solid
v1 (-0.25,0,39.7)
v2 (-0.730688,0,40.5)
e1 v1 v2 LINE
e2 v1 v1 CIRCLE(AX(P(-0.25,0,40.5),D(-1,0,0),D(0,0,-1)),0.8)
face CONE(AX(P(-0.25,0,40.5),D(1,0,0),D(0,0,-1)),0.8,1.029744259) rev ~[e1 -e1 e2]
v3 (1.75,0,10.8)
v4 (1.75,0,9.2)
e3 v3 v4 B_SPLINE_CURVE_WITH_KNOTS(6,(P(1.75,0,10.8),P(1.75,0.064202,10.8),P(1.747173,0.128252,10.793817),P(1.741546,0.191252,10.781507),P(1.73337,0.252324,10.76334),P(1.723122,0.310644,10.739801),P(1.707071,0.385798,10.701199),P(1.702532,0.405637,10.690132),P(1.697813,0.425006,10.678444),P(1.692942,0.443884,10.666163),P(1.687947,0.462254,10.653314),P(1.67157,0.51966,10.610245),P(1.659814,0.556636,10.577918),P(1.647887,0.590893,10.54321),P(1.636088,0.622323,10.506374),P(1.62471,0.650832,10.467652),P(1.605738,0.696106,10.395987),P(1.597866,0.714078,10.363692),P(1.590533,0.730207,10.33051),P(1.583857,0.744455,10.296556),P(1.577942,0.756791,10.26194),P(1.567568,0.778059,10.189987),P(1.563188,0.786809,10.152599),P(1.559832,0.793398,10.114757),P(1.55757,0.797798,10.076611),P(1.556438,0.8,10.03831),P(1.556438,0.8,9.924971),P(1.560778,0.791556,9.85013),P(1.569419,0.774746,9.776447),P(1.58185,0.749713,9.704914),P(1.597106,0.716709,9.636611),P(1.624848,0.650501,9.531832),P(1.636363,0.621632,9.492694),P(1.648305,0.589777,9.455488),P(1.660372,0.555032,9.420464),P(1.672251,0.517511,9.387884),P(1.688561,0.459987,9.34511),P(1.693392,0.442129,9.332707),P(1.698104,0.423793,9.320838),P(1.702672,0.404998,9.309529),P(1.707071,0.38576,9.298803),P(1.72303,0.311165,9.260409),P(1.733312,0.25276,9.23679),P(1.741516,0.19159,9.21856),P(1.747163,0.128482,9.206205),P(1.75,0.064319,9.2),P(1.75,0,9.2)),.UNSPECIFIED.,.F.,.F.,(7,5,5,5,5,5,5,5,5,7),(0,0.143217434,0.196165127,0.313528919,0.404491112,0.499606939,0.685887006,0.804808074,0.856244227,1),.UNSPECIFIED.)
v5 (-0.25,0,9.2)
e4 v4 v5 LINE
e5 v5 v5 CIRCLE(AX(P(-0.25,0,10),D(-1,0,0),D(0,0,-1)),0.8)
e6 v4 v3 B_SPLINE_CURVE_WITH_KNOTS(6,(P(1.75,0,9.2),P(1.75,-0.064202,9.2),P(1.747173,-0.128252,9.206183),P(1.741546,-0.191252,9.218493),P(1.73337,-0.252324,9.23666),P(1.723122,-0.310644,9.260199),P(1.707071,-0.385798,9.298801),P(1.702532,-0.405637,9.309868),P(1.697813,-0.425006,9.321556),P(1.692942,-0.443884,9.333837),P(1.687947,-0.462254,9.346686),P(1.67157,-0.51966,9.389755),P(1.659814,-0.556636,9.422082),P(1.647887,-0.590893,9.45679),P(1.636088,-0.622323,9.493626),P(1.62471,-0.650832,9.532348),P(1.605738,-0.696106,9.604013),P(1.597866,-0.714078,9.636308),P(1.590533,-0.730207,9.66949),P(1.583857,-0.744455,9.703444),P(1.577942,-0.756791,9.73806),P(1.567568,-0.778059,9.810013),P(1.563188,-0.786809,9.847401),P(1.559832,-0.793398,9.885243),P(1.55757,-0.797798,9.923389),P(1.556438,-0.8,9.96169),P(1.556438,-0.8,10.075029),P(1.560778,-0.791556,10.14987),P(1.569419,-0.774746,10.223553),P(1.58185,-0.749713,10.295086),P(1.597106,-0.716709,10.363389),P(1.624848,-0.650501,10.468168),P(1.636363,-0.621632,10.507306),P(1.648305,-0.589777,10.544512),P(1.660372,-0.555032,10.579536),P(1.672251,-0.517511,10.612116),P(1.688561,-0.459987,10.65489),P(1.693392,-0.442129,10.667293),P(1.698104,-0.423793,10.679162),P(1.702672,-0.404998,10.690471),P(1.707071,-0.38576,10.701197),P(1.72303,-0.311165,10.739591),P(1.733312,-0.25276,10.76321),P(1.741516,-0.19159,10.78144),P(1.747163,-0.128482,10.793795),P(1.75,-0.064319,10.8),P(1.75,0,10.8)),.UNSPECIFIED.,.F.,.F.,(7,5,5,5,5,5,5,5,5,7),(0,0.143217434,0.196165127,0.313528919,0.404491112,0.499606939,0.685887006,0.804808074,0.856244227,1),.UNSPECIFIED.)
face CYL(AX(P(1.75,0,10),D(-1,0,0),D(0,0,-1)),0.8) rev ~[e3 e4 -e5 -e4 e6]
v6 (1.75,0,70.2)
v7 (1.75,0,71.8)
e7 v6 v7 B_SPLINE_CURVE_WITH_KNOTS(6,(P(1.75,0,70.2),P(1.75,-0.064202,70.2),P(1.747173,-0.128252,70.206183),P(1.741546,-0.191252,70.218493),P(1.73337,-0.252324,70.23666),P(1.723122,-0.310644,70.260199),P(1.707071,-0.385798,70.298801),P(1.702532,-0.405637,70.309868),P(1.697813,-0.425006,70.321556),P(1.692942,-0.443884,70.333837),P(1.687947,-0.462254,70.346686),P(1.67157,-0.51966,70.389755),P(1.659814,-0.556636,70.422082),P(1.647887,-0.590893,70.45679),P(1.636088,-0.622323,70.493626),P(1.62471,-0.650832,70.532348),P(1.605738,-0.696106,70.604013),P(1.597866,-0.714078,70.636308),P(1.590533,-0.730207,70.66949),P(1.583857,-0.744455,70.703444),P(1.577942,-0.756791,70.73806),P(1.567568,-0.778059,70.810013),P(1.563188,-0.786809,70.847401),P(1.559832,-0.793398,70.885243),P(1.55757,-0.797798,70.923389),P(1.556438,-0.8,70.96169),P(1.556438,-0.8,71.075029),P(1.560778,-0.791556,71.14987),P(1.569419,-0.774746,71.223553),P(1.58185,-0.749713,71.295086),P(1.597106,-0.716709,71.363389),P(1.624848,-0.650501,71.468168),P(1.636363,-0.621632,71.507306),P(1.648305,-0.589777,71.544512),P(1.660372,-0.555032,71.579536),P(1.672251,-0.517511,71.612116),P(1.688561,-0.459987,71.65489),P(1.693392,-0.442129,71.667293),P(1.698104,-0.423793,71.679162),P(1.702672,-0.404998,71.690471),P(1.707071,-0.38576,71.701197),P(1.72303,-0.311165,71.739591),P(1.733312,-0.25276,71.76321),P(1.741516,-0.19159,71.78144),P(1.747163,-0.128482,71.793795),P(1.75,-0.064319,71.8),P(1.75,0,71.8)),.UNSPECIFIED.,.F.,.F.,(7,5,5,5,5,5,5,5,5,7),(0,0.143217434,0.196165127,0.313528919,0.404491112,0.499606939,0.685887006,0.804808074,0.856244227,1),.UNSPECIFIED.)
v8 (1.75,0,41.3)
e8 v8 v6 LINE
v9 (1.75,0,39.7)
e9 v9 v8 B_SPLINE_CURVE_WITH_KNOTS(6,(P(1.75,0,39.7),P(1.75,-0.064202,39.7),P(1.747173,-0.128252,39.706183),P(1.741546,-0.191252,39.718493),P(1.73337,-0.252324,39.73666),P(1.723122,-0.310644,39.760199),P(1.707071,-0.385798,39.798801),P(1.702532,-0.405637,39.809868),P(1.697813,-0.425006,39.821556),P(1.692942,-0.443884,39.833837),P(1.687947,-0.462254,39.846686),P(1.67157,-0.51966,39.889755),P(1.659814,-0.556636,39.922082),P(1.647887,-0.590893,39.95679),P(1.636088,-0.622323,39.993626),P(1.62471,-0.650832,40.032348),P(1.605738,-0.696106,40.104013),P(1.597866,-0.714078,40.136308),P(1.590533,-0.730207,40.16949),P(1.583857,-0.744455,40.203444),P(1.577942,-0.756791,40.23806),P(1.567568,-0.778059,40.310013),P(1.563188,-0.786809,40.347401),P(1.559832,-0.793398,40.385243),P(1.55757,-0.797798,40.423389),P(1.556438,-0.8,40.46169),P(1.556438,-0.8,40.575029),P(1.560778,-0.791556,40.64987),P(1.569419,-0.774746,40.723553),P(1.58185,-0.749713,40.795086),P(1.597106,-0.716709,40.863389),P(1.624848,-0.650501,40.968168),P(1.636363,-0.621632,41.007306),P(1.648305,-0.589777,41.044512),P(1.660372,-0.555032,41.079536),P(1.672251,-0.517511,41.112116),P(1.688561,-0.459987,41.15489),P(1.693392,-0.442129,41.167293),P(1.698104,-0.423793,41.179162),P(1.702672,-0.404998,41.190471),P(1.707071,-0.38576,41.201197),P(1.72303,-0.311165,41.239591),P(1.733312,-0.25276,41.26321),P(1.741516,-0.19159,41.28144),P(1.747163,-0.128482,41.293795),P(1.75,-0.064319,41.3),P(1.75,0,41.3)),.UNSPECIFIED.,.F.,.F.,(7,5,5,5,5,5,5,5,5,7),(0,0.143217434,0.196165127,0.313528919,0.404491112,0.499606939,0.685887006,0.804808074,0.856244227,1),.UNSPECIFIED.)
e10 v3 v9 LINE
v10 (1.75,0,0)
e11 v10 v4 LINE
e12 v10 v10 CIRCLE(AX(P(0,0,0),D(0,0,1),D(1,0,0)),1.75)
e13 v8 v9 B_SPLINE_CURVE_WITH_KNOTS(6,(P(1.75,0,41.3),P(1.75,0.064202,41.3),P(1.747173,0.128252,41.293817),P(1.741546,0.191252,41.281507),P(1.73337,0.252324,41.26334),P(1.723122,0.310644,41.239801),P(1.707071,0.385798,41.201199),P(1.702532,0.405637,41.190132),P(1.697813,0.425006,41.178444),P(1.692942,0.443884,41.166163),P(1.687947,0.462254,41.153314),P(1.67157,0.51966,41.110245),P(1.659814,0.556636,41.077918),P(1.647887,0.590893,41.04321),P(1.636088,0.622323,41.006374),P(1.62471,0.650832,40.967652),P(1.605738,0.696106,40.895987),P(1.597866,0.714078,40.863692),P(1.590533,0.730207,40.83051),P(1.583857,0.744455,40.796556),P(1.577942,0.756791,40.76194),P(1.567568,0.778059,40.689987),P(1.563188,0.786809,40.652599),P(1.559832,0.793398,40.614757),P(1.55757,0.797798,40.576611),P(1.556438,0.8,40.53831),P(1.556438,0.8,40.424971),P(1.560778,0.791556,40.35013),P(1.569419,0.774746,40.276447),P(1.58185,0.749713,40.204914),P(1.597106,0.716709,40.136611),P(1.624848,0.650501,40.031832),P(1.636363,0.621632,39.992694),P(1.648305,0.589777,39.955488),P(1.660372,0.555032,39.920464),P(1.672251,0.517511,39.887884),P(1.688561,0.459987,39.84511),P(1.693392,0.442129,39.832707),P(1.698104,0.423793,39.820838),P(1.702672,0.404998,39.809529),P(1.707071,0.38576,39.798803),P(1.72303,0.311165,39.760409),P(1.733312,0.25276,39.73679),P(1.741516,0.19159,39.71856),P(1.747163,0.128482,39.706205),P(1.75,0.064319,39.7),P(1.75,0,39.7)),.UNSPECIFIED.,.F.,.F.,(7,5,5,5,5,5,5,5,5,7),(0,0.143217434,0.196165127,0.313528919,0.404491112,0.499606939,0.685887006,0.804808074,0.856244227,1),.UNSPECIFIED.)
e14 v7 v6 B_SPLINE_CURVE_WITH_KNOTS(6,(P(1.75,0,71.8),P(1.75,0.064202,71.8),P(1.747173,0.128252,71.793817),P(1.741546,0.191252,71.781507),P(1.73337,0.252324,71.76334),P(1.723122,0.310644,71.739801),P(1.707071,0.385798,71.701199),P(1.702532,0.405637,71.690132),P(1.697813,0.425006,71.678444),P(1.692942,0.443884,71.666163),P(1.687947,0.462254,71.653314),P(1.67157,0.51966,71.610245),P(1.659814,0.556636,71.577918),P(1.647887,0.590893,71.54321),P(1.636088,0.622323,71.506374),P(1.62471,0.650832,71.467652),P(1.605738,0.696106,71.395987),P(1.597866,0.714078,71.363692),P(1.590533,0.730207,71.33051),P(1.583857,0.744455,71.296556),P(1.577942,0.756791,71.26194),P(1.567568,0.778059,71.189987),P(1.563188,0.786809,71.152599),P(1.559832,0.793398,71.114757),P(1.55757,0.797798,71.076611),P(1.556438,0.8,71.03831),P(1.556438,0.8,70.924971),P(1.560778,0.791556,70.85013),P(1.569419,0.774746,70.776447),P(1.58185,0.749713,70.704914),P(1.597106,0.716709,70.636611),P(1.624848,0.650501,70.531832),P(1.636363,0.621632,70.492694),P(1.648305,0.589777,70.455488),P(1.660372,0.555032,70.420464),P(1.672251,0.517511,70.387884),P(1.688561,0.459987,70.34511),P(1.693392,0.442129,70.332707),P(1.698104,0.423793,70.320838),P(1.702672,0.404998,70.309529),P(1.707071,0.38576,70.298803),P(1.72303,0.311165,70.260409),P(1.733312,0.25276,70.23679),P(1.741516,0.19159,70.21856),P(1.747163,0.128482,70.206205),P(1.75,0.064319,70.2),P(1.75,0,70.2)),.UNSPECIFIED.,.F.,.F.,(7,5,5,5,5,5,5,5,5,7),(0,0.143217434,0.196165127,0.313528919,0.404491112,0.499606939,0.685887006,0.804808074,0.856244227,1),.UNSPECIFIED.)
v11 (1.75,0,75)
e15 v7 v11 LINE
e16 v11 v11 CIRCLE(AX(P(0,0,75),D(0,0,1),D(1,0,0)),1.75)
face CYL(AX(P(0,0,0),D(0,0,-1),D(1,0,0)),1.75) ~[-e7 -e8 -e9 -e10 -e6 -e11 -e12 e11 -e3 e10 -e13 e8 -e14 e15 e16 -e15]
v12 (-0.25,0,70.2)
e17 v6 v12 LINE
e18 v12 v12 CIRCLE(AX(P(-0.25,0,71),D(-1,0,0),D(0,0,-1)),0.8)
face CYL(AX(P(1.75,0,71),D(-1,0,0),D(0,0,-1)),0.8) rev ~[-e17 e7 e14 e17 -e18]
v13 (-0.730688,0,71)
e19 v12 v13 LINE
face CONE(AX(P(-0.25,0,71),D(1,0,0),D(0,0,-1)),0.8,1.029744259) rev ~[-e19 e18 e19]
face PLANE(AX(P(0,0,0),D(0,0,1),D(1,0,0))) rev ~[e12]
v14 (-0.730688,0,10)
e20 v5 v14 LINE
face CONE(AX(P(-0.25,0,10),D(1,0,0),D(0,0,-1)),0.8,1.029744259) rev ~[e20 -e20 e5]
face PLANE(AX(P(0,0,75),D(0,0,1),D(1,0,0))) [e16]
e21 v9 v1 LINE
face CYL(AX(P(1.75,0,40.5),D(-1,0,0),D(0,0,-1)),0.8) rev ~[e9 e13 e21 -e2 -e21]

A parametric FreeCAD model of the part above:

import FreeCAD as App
import Part
import Sketcher

doc = App.newDocument("Part")
params = doc.addObject("Spreadsheet::Sheet", "Params")
for row, (alias, value) in enumerate([
    ("sketch1_diameter", "3.5 mm"),
    ("pad1_length", "75 mm"),
    ("sketch2_diameter", "1.6 mm"),
    ("hole_diameter", "1.6 mm"),
    ("hole_depth", "2 mm"),
], start=1):
    params.set(f"A{row}", alias)
    params.set(f"B{row}", "=" + value)
    params.setAlias(f"B{row}", alias)

body = doc.addObject("PartDesign::Body", "Body")

sketch1 = doc.addObject("Sketcher::SketchObject", "Sketch")
body.addObject(sketch1)
sketch1.AttachmentSupport = (doc.XY_Plane, [""])
sketch1.MapMode = "FlatFace"
sketch1.addGeometry(Part.Circle(App.Vector(0, 0, 0), App.Vector(0, 0, 1), 1.8), False)
sketch1.addConstraint([
    Sketcher.Constraint("Coincident", 0, 3, -1, 1),
    Sketcher.Constraint("Diameter", 0, 3.5),
])
sketch1.setExpression("Constraints[1]", "Params.sketch1_diameter")
pad1 = doc.addObject("PartDesign::Pad", "Pad")
body.addObject(pad1)
pad1.Profile = sketch1
pad1.setExpression("Length", "Params.pad1_length")

sketch2 = doc.addObject("Sketcher::SketchObject", "Sketch001")
body.addObject(sketch2)
sketch2.AttachmentSupport = (doc.YZ_Plane, [""])
sketch2.MapMode = "FlatFace"
sketch2.AttachmentOffset = App.Placement(App.Vector(0, 0, 1.75), App.Rotation())
sketch2.addGeometry([
    Part.Circle(App.Vector(0, 10, 0), App.Vector(0, 0, 1), 0.8),
    Part.Circle(App.Vector(0, 40.5, 0), App.Vector(0, 0, 1), 0.8),
    Part.Circle(App.Vector(0, 71, 0), App.Vector(0, 0, 1), 0.8),
    Part.Circle(App.Vector(0, 10, 0), App.Vector(0, 0, 1), 0.8),
    Part.Circle(App.Vector(0, 40.5, 0), App.Vector(0, 0, 1), 0.8),
    Part.Circle(App.Vector(0, 71, 0), App.Vector(0, 0, 1), 0.8),
], False)
sketch2.addConstraint([
    Sketcher.Constraint("Coincident", 3, 3, 0, 3),
    Sketcher.Constraint("Coincident", 4, 3, 1, 3),
    Sketcher.Constraint("Coincident", 5, 3, 2, 3),
    Sketcher.Constraint("Equal", 0, 1),
    Sketcher.Constraint("Equal", 1, 2),
    Sketcher.Constraint("Equal", 2, 3),
    Sketcher.Constraint("Equal", 3, 4),
    Sketcher.Constraint("Equal", 4, 5),
    Sketcher.Constraint("PointOnObject", 0, 3, -2),
    Sketcher.Constraint("PointOnObject", 1, 3, -2),
    Sketcher.Constraint("PointOnObject", 2, 3, -2),
    Sketcher.Constraint("Diameter", 0, 1.6),
    Sketcher.Constraint("DistanceY", -1, 1, 0, 3, 10.0),
    Sketcher.Constraint("DistanceY", -1, 1, 2, 3, 71.0),
    Sketcher.Constraint("DistanceY", -1, 1, 1, 3, 40.5),
])
sketch2.setExpression("Constraints[11]", "Params.sketch2_diameter")
doc.recompute()
hole = doc.addObject("PartDesign::Hole", "Hole")
body.addObject(hole)
hole.Profile = sketch2
hole.ThreadType = "None"
hole.setExpression("Diameter", "Params.hole_diameter")
hole.DepthType = "Dimension"
hole.setExpression("Depth", "Params.hole_depth")
hole.DrillPoint = "Angled"
hole.DrillPointAngle = 118

doc.recompute()
